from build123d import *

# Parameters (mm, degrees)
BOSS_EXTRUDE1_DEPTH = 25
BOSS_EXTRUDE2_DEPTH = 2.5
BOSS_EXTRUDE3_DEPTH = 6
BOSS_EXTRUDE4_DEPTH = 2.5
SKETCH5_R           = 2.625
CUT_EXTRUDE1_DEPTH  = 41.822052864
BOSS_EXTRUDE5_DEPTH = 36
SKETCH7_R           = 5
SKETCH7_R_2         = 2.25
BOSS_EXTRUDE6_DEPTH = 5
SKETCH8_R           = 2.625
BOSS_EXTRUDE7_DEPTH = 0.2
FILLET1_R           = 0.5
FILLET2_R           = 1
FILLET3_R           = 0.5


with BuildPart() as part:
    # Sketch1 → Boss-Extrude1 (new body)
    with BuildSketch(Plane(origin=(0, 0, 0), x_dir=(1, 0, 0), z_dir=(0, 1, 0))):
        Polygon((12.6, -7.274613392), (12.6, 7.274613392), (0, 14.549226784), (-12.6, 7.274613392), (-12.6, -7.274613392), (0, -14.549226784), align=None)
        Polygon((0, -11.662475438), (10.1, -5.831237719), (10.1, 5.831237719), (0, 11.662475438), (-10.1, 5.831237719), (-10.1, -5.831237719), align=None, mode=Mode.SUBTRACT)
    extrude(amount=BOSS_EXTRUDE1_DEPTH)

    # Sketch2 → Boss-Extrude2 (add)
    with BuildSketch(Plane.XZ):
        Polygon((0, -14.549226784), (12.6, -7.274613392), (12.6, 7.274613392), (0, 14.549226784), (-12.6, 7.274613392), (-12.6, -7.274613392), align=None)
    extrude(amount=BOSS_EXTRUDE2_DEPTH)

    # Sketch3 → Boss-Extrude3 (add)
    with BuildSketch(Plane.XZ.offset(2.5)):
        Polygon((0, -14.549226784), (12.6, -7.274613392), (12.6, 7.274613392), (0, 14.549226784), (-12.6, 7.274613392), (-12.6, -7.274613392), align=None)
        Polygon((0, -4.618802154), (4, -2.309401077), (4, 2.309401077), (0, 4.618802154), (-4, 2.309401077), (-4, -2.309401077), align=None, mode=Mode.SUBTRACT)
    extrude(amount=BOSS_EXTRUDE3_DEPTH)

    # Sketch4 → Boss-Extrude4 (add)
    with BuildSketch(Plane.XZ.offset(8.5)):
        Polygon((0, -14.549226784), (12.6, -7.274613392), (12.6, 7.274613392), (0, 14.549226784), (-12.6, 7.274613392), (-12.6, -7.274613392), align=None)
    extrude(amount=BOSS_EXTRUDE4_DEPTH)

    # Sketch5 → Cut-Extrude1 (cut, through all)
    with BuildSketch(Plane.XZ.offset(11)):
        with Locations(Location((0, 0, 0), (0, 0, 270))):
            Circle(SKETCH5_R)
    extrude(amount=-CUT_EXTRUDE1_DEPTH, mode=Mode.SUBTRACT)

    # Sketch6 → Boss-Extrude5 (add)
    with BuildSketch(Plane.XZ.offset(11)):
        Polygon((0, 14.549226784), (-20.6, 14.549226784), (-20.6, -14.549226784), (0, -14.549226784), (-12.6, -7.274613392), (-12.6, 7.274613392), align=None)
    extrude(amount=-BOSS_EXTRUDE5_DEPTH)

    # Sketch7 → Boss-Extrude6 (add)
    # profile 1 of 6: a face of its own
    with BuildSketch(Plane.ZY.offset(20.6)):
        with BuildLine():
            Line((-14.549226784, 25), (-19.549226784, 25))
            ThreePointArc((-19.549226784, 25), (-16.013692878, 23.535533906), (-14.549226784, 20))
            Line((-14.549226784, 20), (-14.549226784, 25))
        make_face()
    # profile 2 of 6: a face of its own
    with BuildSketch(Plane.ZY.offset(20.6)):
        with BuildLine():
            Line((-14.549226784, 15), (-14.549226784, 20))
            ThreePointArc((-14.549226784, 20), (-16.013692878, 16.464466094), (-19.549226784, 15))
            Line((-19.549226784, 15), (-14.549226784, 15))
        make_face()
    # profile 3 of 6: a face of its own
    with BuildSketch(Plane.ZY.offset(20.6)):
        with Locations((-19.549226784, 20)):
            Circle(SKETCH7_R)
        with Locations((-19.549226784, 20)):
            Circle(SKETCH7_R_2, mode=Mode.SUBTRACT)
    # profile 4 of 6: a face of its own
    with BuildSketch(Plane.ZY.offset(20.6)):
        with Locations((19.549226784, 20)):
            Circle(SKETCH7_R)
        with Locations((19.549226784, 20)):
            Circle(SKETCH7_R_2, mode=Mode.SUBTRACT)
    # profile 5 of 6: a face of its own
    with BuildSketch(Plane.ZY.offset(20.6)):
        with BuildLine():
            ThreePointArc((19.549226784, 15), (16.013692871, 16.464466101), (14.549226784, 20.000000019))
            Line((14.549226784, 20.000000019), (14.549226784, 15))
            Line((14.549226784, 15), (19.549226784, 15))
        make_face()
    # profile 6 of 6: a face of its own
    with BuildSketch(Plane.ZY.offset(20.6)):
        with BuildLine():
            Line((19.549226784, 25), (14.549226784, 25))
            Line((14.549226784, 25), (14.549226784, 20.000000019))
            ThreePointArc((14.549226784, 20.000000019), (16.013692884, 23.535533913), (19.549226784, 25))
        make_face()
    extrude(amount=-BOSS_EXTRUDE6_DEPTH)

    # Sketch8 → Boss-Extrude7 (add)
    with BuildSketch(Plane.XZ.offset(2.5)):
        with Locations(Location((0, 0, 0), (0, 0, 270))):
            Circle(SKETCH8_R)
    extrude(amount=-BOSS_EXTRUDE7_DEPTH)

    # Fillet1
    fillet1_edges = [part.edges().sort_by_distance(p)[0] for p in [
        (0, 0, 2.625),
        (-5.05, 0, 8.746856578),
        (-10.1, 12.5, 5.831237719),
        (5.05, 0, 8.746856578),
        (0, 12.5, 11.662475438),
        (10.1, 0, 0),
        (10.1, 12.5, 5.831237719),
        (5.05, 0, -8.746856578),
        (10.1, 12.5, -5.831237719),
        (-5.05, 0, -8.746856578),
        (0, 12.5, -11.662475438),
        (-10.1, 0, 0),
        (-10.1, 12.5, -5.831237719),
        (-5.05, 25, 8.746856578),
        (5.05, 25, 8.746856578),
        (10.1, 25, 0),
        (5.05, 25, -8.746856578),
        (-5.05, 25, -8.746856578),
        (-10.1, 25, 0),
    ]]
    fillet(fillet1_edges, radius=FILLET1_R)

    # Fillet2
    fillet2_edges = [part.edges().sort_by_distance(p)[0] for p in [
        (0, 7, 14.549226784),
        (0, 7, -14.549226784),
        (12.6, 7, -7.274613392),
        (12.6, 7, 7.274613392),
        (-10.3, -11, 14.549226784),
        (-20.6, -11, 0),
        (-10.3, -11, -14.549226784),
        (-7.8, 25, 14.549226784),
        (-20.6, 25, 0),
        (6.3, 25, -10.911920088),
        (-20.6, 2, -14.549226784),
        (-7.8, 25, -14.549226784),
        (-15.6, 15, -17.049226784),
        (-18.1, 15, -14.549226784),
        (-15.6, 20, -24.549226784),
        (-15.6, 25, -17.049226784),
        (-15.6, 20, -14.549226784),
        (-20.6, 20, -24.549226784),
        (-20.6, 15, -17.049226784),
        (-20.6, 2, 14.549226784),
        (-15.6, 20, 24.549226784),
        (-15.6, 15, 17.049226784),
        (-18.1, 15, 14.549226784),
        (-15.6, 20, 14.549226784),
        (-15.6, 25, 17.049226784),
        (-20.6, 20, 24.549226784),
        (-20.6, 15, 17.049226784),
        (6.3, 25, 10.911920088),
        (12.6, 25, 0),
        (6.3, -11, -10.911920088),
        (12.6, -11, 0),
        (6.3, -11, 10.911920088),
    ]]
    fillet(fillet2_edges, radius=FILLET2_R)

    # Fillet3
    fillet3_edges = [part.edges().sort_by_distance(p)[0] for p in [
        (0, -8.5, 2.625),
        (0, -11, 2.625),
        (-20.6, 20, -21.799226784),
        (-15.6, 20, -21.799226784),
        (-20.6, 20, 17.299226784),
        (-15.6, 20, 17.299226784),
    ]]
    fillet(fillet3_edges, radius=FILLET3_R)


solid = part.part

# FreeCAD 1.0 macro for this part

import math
import FreeCAD as App
import Part
import Sketcher

V = App.Vector
Q = App.Units.Quantity


def edges_at(feature, points):
    """Names of the edges that pass closest to the given points."""
    edges = feature.Shape.Edges
    near = lambda p: min(range(len(edges)), key=lambda i: edges[i].distToShape(Part.Vertex(*p))[0])
    return sorted({f"Edge{near(p) + 1}" for p in points})


def add_polygon(sketch, points):
    """Adds a closed chain of lines whose ends are joined by coincident constraints."""
    first, n = sketch.GeometryCount, len(points)
    for a, b in zip(points, points[1:] + points[:1]):
        sketch.addGeometry(Part.LineSegment(App.Vector(*a, 0), App.Vector(*b, 0)), False)
    for i in range(n):
        sketch.addConstraint(Sketcher.Constraint("Coincident", first + i, 2, first + (i + 1) % n, 1))

doc = App.newDocument("Part")
body = doc.addObject("PartDesign::Body", "Body")

# Sketch on XZ plane
sketch1 = body.newObject("Sketcher::SketchObject", "Sketch")
sketch1.AttachmentSupport = (doc.getObject("XZ_Plane"), [""])
sketch1.MapMode = "FlatFace"
add_polygon(sketch1, [(13, 7), (13, -7), (0, -15), (-13, -7), (-13, 7), (0, 15)])  # lines 0-5
add_polygon(sketch1, [(10, 6), (0, 12), (-10, 6), (-10, -6), (0, -12), (10, -6)])  # lines 6-11
sketch1.addConstraint([
    Sketcher.Constraint("Vertical", 0),
    Sketcher.Constraint("Vertical", 3),
    Sketcher.Constraint("Vertical", 8),
    Sketcher.Constraint("Vertical", 11),
    Sketcher.Constraint("Symmetric", 0, 2, 3, 2, -1, 1),
    Sketcher.Constraint("Symmetric", 1, 2, 4, 2, -1, 1),
    Sketcher.Constraint("Symmetric", 6, 2, 9, 2, -1, 1),
    Sketcher.Constraint("Symmetric", 7, 2, 10, 2, -1, 1),
    Sketcher.Constraint("PointOnObject", 1, 2, -2),
    Sketcher.Constraint("PointOnObject", 6, 2, -2),
    Sketcher.Constraint("Parallel", 2, 5),
    Sketcher.Constraint("Parallel", 5, 6),
    Sketcher.Constraint("Parallel", 4, 7),
    Sketcher.Constraint("Parallel", 6, 9),
    Sketcher.Constraint("Horizontal", 0, 2, 2, 2),
    Sketcher.Constraint("Angle", 1, Q("-150 deg")),
    Sketcher.Constraint("DistanceX", -1, 1, 0, 2, 12.6),
    Sketcher.Constraint("DistanceX", 7, 2, -1, 1, 10.1),
    Sketcher.Constraint("DistanceY", 0, 2, 0, 1, 14.549227),
    Sketcher.Constraint("DistanceY", 8, 2, 8, 1, 11.662475),
])
pad1 = body.newObject("PartDesign::Pad", "Pad")
pad1.Profile = sketch1
pad1.Length = 25
pad1.Reversed = True

# Sketch on XZ plane
sketch2 = body.newObject("Sketcher::SketchObject", "Sketch001")
sketch2.AttachmentSupport = (doc.getObject("XZ_Plane"), [""])
sketch2.MapMode = "FlatFace"
add_polygon(sketch2, [(0, -15), (13, -7), (13, 7), (0, 15), (-13, 7), (-13, -7)])  # lines 0-5
sketch2.addConstraint([
    Sketcher.Constraint("Vertical", 1),
    Sketcher.Constraint("Vertical", 4),
    Sketcher.Constraint("Symmetric", 0, 2, 3, 2, -1, 1),
    Sketcher.Constraint("Symmetric", 2, 2, 5, 2, -1, 1),
    Sketcher.Constraint("PointOnObject", 2, 2, -2),
    Sketcher.Constraint("Parallel", 2, 5),
    Sketcher.Constraint("Horizontal", 1, 2, 3, 2),
    Sketcher.Constraint("Angle", 0, Q("30 deg")),
    Sketcher.Constraint("DistanceX", -1, 1, 0, 2, 12.6),
    Sketcher.Constraint("DistanceY", 1, 1, 1, 2, 14.549227),
])
pad2 = body.newObject("PartDesign::Pad", "Pad001")
pad2.Profile = sketch2
pad2.Length = 2.5

# Sketch on XZ plane
sketch3 = body.newObject("Sketcher::SketchObject", "Sketch002")
sketch3.AttachmentSupport = (doc.getObject("XZ_Plane"), [""])
sketch3.MapMode = "FlatFace"
sketch3.AttachmentOffset = App.Placement(V(0, 0, 2.5), App.Rotation())
add_polygon(sketch3, [(0, -14.5), (12.6, -7.3), (12.6, 7.3), (0, 14.5), (-12.6, 7.3), (-12.6, -7.3)])  # lines 0-5
add_polygon(sketch3, [(4, -2.3), (0, -4.6), (-4, -2.3), (-4, 2.3), (0, 4.6), (4, 2.3)])  # lines 6-11
sketch3.addConstraint([
    Sketcher.Constraint("Vertical", 1),
    Sketcher.Constraint("Vertical", 4),
    Sketcher.Constraint("Vertical", 8),
    Sketcher.Constraint("Vertical", 11),
    Sketcher.Constraint("Symmetric", 0, 2, 3, 2, -1, 1),
    Sketcher.Constraint("Symmetric", 2, 2, 5, 2, -1, 1),
    Sketcher.Constraint("Symmetric", 6, 2, 9, 2, -1, 1),
    Sketcher.Constraint("Symmetric", 7, 2, 10, 2, -1, 1),
    Sketcher.Constraint("PointOnObject", 2, 2, -2),
    Sketcher.Constraint("PointOnObject", 6, 2, -2),
    Sketcher.Constraint("Parallel", 2, 5),
    Sketcher.Constraint("Parallel", 3, 6),
    Sketcher.Constraint("Parallel", 5, 7),
    Sketcher.Constraint("Parallel", 6, 9),
    Sketcher.Constraint("Horizontal", 1, 2, 3, 2),
    Sketcher.Constraint("Angle", 0, Q("30 deg")),
    Sketcher.Constraint("DistanceX", 7, 2, -1, 1, 4.0),
    Sketcher.Constraint("DistanceX", -1, 1, 0, 2, 12.6),
    Sketcher.Constraint("DistanceY", 7, 2, -1, 1, 2.309401),
    Sketcher.Constraint("DistanceY", 1, 1, 1, 2, 14.549227),
])
pad3 = body.newObject("PartDesign::Pad", "Pad002")
pad3.Profile = sketch3
pad3.Length = 6

# Sketch on XZ plane
sketch4 = body.newObject("Sketcher::SketchObject", "Sketch003")
sketch4.AttachmentSupport = (doc.getObject("XZ_Plane"), [""])
sketch4.MapMode = "FlatFace"
sketch4.AttachmentOffset = App.Placement(V(0, 0, 8.5), App.Rotation())
add_polygon(sketch4, [(0, -15), (13, -7), (13, 7), (0, 15), (-13, 7), (-13, -7)])  # lines 0-5
sketch4.addConstraint([
    Sketcher.Constraint("Vertical", 1),
    Sketcher.Constraint("Vertical", 4),
    Sketcher.Constraint("Symmetric", 0, 2, 3, 2, -1, 1),
    Sketcher.Constraint("Symmetric", 2, 2, 5, 2, -1, 1),
    Sketcher.Constraint("PointOnObject", 2, 2, -2),
    Sketcher.Constraint("Parallel", 2, 5),
    Sketcher.Constraint("Horizontal", 1, 2, 3, 2),
    Sketcher.Constraint("Angle", 0, Q("30 deg")),
    Sketcher.Constraint("DistanceX", -1, 1, 0, 2, 12.6),
    Sketcher.Constraint("DistanceY", 1, 1, 1, 2, 14.549227),
])
pad4 = body.newObject("PartDesign::Pad", "Pad003")
pad4.Profile = sketch4
pad4.Length = 2.5

# Sketch on XZ plane
sketch5 = body.newObject("Sketcher::SketchObject", "Sketch004")
sketch5.AttachmentSupport = (doc.getObject("XZ_Plane"), [""])
sketch5.MapMode = "FlatFace"
sketch5.AttachmentOffset = App.Placement(V(0, 0, 11), App.Rotation())
sketch5.addGeometry(Part.Circle(V(0, 0, 0), V(0, 0, 1), 2.6), False)
sketch5.addConstraint([
    Sketcher.Constraint("Coincident", 0, 3, -1, 1),
    Sketcher.Constraint("Diameter", 0, 5.25),
])
pocket1 = body.newObject("PartDesign::Pocket", "Pocket")
pocket1.Profile = sketch5
pocket1.Type = "ThroughAll"

# Sketch on XZ plane
sketch6 = body.newObject("Sketcher::SketchObject", "Sketch005")
sketch6.AttachmentSupport = (doc.getObject("XZ_Plane"), [""])
sketch6.MapMode = "FlatFace"
sketch6.AttachmentOffset = App.Placement(V(0, 0, 11), App.Rotation())
add_polygon(sketch6, [(0, 15), (-21, 15), (-21, -15), (0, -15), (-13, -7), (-13, 7)])  # lines 0-5
sketch6.addConstraint([
    Sketcher.Constraint("Horizontal", 0),
    Sketcher.Constraint("Vertical", 1),
    Sketcher.Constraint("Horizontal", 2),
    Sketcher.Constraint("Vertical", 4),
    Sketcher.Constraint("Symmetric", 2, 2, 5, 2, -1, 1),
    Sketcher.Constraint("PointOnObject", 2, 2, -2),
    Sketcher.Constraint("Equal", 3, 5),
    Sketcher.Constraint("Angle", 3, Q("150 deg")),
    Sketcher.Constraint("DistanceX", 0, 2, 0, 1, 20.6),
    Sketcher.Constraint("DistanceX", 1, 2, 3, 2, 8.0),
    Sketcher.Constraint("DistanceY", 1, 2, 1, 1, 29.098454),
])
pad5 = body.newObject("PartDesign::Pad", "Pad004")
pad5.Profile = sketch6
pad5.Length = 36
pad5.Reversed = True

# Sketch on YZ plane
sketch7 = body.newObject("Sketcher::SketchObject", "Sketch006")
sketch7.AttachmentSupport = (doc.getObject("YZ_Plane"), [""])
sketch7.MapMode = "FlatFace"
sketch7.AttachmentOffset = App.Placement(V(0, 0, -20.6), App.Rotation())
sketch7.addGeometry([
    Part.LineSegment(V(25, -14.5, 0), V(25, -19.5, 0)),  # 0
    Part.ArcOfCircle(Part.Circle(V(20, -19.5, 0), V(0, 0, 1), 5), math.radians(180), math.radians(360)),  # 1
    Part.LineSegment(V(15, -19.5, 0), V(15, -14.5, 0)),  # 2
    Part.LineSegment(V(15, -14.5, 0), V(25, -14.5, 0)),  # 3
    Part.Circle(V(20, -19.5, 0), V(0, 0, 1), 2.2),  # 4
    Part.LineSegment(V(25, 19.5, 0), V(25, 14.5, 0)),  # 5
    Part.LineSegment(V(25, 14.5, 0), V(15, 14.5, 0)),  # 6
    Part.LineSegment(V(15, 14.5, 0), V(15, 19.5, 0)),  # 7
    Part.ArcOfCircle(Part.Circle(V(20, 19.5, 0), V(0, 0, 1), 5), math.radians(0), math.radians(180)),  # 8
    Part.Circle(V(20, 19.5, 0), V(0, 0, 1), 2.2),  # 9
], False)
sketch7.addConstraint([
    Sketcher.Constraint("Tangent", 0, 2, 1, 2),
    Sketcher.Constraint("Tangent", 1, 1, 2, 1),
    Sketcher.Constraint("Coincident", 2, 2, 3, 1),
    Sketcher.Constraint("Coincident", 3, 2, 0, 1),
    Sketcher.Constraint("Coincident", 5, 2, 6, 1),
    Sketcher.Constraint("Coincident", 6, 2, 7, 1),
    Sketcher.Constraint("Tangent", 7, 2, 8, 2),
    Sketcher.Constraint("Tangent", 8, 1, 5, 1),
    Sketcher.Constraint("Vertical", 0),
    Sketcher.Constraint("Vertical", 2),
    Sketcher.Constraint("Horizontal", 3),
    Sketcher.Constraint("Vertical", 5),
    Sketcher.Constraint("Horizontal", 6),
    Sketcher.Constraint("Vertical", 7),
    Sketcher.Constraint("Coincident", 4, 3, 1, 3),
    Sketcher.Constraint("Coincident", 9, 3, 8, 3),
    Sketcher.Constraint("Equal", 1, 8),
    Sketcher.Constraint("Equal", 4, 9),
    Sketcher.Constraint("Symmetric", 1, 3, 8, 3, -1),
    Sketcher.Constraint("Equal", 2, 5),
    Sketcher.Constraint("Radius", 1, 5.0),
    Sketcher.Constraint("Diameter", 4, 4.5),
    Sketcher.Constraint("DistanceY", 0, 2, 0, 1, 5.0),
    Sketcher.Constraint("DistanceX", -1, 1, 1, 3, 20.0),
    Sketcher.Constraint("DistanceY", 1, 3, -1, 1, 19.549227),
])
pad6 = body.newObject("PartDesign::Pad", "Pad005")
pad6.Profile = sketch7
pad6.Length = 5

# Sketch on XZ plane
sketch8 = body.newObject("Sketcher::SketchObject", "Sketch007")
sketch8.AttachmentSupport = (doc.getObject("XZ_Plane"), [""])
sketch8.MapMode = "FlatFace"
sketch8.AttachmentOffset = App.Placement(V(0, 0, 2.5), App.Rotation())
sketch8.addGeometry(Part.Circle(V(0, 0, 0), V(0, 0, 1), 2.6), False)
sketch8.addConstraint([
    Sketcher.Constraint("Coincident", 0, 3, -1, 1),
    Sketcher.Constraint("Diameter", 0, 5.25),
])
pad7 = body.newObject("PartDesign::Pad", "Pad006")
pad7.Profile = sketch8
pad7.Length = 0.2
pad7.Reversed = True
doc.recompute()

fillet = body.newObject("PartDesign::Fillet", "Fillet")
fillet.Base = (pad7, edges_at(pad7, [
    (0, 0, 2.625),
    (-5.05, 0, 8.747),
    (-10.1, 12.5, 5.831),
    (5.05, 0, 8.747),
    (0, 12.5, 11.662),
    (10.1, 0, 0),
    (10.1, 12.5, 5.831),
    (5.05, 0, -8.747),
    (10.1, 12.5, -5.831),
    (-5.05, 0, -8.747),
    (0, 12.5, -11.662),
    (-10.1, 0, 0),
    (-10.1, 12.5, -5.831),
    (-5.05, 25, 8.747),
    (5.05, 25, 8.747),
    (10.1, 25, 0),
    (5.05, 25, -8.747),
    (-5.05, 25, -8.747),
    (-10.1, 25, 0),
]))
fillet.Radius = 0.5
doc.recompute()

fillet2 = body.newObject("PartDesign::Fillet", "Fillet001")
fillet2.Base = (fillet, edges_at(fillet, [
    (0, 7, 14.549),
    (0, 7, -14.549),
    (12.6, 7, -7.275),
    (12.6, 7, 7.275),
    (-10.3, -11, 14.549),
    (-20.6, -11, 0),
    (-10.3, -11, -14.549),
    (-7.8, 25, 14.549),
    (-20.6, 25, 0),
    (6.3, 25, -10.912),
    (-20.6, 2, -14.549),
    (-7.8, 25, -14.549),
    (-15.6, 15, -17.049),
    (-18.1, 15, -14.549),
    (-15.6, 20, -24.549),
    (-15.6, 25, -17.049),
    (-15.6, 20, -14.549),
    (-20.6, 20, -24.549),
    (-20.6, 15, -17.049),
    (-20.6, 2, 14.549),
    (-15.6, 20, 24.549),
    (-15.6, 15, 17.049),
    (-18.1, 15, 14.549),
    (-15.6, 20, 14.549),
    (-15.6, 25, 17.049),
    (-20.6, 20, 24.549),
    (-20.6, 15, 17.049),
    (6.3, 25, 10.912),
    (12.6, 25, 0),
    (6.3, -11, -10.912),
    (12.6, -11, 0),
    (6.3, -11, 10.912),
]))
fillet2.Radius = 1
doc.recompute()

fillet3 = body.newObject("PartDesign::Fillet", "Fillet002")
fillet3.Base = (fillet2, edges_at(fillet2, [
    (0, -8.5, 2.625),
    (0, -11, 2.625),
    (-20.6, 20, -21.799),
    (-15.6, 20, -21.799),
    (-20.6, 20, 17.299),
    (-15.6, 20, 17.299),
]))
fillet3.Radius = 0.5

doc.recompute()
